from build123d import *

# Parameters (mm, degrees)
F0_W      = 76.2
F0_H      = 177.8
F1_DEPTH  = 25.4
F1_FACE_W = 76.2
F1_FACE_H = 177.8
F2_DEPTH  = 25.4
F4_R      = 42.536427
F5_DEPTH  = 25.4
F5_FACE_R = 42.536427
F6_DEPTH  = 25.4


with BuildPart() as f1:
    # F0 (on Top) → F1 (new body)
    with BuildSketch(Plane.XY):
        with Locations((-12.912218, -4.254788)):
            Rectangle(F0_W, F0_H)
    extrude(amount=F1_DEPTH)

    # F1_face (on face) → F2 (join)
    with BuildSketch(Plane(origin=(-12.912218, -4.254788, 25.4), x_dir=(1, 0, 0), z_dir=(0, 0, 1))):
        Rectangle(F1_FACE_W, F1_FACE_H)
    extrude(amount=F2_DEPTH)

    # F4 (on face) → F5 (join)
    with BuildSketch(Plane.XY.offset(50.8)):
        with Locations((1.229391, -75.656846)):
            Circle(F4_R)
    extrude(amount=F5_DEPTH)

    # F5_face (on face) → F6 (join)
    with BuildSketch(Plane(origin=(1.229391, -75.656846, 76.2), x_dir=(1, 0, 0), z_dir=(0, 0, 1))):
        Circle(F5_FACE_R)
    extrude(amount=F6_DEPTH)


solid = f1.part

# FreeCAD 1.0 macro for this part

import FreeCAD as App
import Part
import Sketcher
from FreeCAD import Vector
Q = App.Units.Quantity


def add_polygon(sketch, points):
    """Adds a closed chain of lines whose ends are joined by coincident constraints."""
    first, n = sketch.GeometryCount, len(points)
    for a, b in zip(points, points[1:] + points[:1]):
        sketch.addGeometry(Part.LineSegment(App.Vector(*a, 0), App.Vector(*b, 0)), False)
    for i in range(n):
        sketch.addConstraint(Sketcher.Constraint("Coincident", first + i, 2, first + (i + 1) % n, 1))

doc = App.newDocument("Part")
body = doc.addObject("PartDesign::Body", "Body")

# Sketch on XY plane
sketch1 = doc.addObject("Sketcher::SketchObject", "Sketch")
body.addObject(sketch1)
sketch1.AttachmentSupport = (doc.XY_Plane, [""])
sketch1.MapMode = "FlatFace"
add_polygon(sketch1, [(-51, 85), (-51, -93), (25, -93), (25, 85)])  # lines 0-3
sketch1.addConstraint(Sketcher.Constraint("Vertical", 0))
sketch1.addConstraint(Sketcher.Constraint("Horizontal", 1))
sketch1.addConstraint(Sketcher.Constraint("Vertical", 2))
sketch1.addConstraint(Sketcher.Constraint("Horizontal", 3))
sketch1.addConstraint(Sketcher.Constraint("DistanceX", 1, 1, 1, 2, Q("3 in")))
sketch1.addConstraint(Sketcher.Constraint("DistanceY", 0, 2, 0, 1, Q("7 in")))
sketch1.addConstraint(Sketcher.Constraint("DistanceX", -1, 1, 1, 2, Q("25.187782 mm")))
sketch1.addConstraint(Sketcher.Constraint("DistanceY", -1, 1, 2, 2, Q("84.645212 mm")))
pad1 = doc.addObject("PartDesign::Pad", "Pad")
body.addObject(pad1)
pad1.Profile = sketch1
pad1.Length = Q("1 in")

# Sketch on XY plane
sketch2 = doc.addObject("Sketcher::SketchObject", "Sketch001")
body.addObject(sketch2)
sketch2.AttachmentSupport = (doc.XY_Plane, [""])
sketch2.MapMode = "FlatFace"
sketch2.AttachmentOffset = App.Placement(Vector(0, 0, 1 * 25.4), App.Rotation())
add_polygon(sketch2, [(-51, 85), (-51, -93), (25, -93), (25, 85)])  # lines 0-3
sketch2.addConstraint(Sketcher.Constraint("Vertical", 0))
sketch2.addConstraint(Sketcher.Constraint("Horizontal", 1))
sketch2.addConstraint(Sketcher.Constraint("Vertical", 2))
sketch2.addConstraint(Sketcher.Constraint("Horizontal", 3))
sketch2.addConstraint(Sketcher.Constraint("DistanceX", 1, 1, 1, 2, Q("3 in")))
sketch2.addConstraint(Sketcher.Constraint("DistanceY", 0, 2, 0, 1, Q("7 in")))
sketch2.addConstraint(Sketcher.Constraint("DistanceX", -1, 1, 1, 2, Q("25.187782 mm")))
sketch2.addConstraint(Sketcher.Constraint("DistanceY", -1, 1, 2, 2, Q("84.645212 mm")))
pad2 = doc.addObject("PartDesign::Pad", "Pad001")
body.addObject(pad2)
pad2.Profile = sketch2
pad2.Length = Q("1 in")

# Sketch on XY plane
sketch3 = doc.addObject("Sketcher::SketchObject", "Sketch002")
body.addObject(sketch3)
sketch3.AttachmentSupport = (doc.XY_Plane, [""])
sketch3.MapMode = "FlatFace"
sketch3.AttachmentOffset = App.Placement(Vector(0, 0, 2 * 25.4), App.Rotation())
sketch3.addGeometry(Part.Circle(Vector(1, -76, 0), Vector(0, 0, 1), 43), False)
sketch3.addConstraint(Sketcher.Constraint("Diameter", 0, Q("85.072854 mm")))
sketch3.addConstraint(Sketcher.Constraint("DistanceX", -1, 1, 0, 3, Q("1.229391 mm")))
sketch3.addConstraint(Sketcher.Constraint("DistanceY", 0, 3, -1, 1, Q("75.656846 mm")))
pad3 = doc.addObject("PartDesign::Pad", "Pad002")
body.addObject(pad3)
pad3.Profile = sketch3
pad3.Length = Q("1 in")

# Sketch on XY plane
sketch4 = doc.addObject("Sketcher::SketchObject", "Sketch003")
body.addObject(sketch4)
sketch4.AttachmentSupport = (doc.XY_Plane, [""])
sketch4.MapMode = "FlatFace"
sketch4.AttachmentOffset = App.Placement(Vector(0, 0, 3 * 25.4), App.Rotation())
sketch4.addGeometry(Part.Circle(Vector(1, -76, 0), Vector(0, 0, 1), 43), False)
sketch4.addConstraint(Sketcher.Constraint("Diameter", 0, Q("85.072854 mm")))
sketch4.addConstraint(Sketcher.Constraint("DistanceX", -1, 1, 0, 3, Q("1.229391 mm")))
sketch4.addConstraint(Sketcher.Constraint("DistanceY", 0, 3, -1, 1, Q("75.656846 mm")))
pad4 = doc.addObject("PartDesign::Pad", "Pad003")
body.addObject(pad4)
pad4.Profile = sketch4
pad4.Length = Q("1 in")

doc.recompute()
